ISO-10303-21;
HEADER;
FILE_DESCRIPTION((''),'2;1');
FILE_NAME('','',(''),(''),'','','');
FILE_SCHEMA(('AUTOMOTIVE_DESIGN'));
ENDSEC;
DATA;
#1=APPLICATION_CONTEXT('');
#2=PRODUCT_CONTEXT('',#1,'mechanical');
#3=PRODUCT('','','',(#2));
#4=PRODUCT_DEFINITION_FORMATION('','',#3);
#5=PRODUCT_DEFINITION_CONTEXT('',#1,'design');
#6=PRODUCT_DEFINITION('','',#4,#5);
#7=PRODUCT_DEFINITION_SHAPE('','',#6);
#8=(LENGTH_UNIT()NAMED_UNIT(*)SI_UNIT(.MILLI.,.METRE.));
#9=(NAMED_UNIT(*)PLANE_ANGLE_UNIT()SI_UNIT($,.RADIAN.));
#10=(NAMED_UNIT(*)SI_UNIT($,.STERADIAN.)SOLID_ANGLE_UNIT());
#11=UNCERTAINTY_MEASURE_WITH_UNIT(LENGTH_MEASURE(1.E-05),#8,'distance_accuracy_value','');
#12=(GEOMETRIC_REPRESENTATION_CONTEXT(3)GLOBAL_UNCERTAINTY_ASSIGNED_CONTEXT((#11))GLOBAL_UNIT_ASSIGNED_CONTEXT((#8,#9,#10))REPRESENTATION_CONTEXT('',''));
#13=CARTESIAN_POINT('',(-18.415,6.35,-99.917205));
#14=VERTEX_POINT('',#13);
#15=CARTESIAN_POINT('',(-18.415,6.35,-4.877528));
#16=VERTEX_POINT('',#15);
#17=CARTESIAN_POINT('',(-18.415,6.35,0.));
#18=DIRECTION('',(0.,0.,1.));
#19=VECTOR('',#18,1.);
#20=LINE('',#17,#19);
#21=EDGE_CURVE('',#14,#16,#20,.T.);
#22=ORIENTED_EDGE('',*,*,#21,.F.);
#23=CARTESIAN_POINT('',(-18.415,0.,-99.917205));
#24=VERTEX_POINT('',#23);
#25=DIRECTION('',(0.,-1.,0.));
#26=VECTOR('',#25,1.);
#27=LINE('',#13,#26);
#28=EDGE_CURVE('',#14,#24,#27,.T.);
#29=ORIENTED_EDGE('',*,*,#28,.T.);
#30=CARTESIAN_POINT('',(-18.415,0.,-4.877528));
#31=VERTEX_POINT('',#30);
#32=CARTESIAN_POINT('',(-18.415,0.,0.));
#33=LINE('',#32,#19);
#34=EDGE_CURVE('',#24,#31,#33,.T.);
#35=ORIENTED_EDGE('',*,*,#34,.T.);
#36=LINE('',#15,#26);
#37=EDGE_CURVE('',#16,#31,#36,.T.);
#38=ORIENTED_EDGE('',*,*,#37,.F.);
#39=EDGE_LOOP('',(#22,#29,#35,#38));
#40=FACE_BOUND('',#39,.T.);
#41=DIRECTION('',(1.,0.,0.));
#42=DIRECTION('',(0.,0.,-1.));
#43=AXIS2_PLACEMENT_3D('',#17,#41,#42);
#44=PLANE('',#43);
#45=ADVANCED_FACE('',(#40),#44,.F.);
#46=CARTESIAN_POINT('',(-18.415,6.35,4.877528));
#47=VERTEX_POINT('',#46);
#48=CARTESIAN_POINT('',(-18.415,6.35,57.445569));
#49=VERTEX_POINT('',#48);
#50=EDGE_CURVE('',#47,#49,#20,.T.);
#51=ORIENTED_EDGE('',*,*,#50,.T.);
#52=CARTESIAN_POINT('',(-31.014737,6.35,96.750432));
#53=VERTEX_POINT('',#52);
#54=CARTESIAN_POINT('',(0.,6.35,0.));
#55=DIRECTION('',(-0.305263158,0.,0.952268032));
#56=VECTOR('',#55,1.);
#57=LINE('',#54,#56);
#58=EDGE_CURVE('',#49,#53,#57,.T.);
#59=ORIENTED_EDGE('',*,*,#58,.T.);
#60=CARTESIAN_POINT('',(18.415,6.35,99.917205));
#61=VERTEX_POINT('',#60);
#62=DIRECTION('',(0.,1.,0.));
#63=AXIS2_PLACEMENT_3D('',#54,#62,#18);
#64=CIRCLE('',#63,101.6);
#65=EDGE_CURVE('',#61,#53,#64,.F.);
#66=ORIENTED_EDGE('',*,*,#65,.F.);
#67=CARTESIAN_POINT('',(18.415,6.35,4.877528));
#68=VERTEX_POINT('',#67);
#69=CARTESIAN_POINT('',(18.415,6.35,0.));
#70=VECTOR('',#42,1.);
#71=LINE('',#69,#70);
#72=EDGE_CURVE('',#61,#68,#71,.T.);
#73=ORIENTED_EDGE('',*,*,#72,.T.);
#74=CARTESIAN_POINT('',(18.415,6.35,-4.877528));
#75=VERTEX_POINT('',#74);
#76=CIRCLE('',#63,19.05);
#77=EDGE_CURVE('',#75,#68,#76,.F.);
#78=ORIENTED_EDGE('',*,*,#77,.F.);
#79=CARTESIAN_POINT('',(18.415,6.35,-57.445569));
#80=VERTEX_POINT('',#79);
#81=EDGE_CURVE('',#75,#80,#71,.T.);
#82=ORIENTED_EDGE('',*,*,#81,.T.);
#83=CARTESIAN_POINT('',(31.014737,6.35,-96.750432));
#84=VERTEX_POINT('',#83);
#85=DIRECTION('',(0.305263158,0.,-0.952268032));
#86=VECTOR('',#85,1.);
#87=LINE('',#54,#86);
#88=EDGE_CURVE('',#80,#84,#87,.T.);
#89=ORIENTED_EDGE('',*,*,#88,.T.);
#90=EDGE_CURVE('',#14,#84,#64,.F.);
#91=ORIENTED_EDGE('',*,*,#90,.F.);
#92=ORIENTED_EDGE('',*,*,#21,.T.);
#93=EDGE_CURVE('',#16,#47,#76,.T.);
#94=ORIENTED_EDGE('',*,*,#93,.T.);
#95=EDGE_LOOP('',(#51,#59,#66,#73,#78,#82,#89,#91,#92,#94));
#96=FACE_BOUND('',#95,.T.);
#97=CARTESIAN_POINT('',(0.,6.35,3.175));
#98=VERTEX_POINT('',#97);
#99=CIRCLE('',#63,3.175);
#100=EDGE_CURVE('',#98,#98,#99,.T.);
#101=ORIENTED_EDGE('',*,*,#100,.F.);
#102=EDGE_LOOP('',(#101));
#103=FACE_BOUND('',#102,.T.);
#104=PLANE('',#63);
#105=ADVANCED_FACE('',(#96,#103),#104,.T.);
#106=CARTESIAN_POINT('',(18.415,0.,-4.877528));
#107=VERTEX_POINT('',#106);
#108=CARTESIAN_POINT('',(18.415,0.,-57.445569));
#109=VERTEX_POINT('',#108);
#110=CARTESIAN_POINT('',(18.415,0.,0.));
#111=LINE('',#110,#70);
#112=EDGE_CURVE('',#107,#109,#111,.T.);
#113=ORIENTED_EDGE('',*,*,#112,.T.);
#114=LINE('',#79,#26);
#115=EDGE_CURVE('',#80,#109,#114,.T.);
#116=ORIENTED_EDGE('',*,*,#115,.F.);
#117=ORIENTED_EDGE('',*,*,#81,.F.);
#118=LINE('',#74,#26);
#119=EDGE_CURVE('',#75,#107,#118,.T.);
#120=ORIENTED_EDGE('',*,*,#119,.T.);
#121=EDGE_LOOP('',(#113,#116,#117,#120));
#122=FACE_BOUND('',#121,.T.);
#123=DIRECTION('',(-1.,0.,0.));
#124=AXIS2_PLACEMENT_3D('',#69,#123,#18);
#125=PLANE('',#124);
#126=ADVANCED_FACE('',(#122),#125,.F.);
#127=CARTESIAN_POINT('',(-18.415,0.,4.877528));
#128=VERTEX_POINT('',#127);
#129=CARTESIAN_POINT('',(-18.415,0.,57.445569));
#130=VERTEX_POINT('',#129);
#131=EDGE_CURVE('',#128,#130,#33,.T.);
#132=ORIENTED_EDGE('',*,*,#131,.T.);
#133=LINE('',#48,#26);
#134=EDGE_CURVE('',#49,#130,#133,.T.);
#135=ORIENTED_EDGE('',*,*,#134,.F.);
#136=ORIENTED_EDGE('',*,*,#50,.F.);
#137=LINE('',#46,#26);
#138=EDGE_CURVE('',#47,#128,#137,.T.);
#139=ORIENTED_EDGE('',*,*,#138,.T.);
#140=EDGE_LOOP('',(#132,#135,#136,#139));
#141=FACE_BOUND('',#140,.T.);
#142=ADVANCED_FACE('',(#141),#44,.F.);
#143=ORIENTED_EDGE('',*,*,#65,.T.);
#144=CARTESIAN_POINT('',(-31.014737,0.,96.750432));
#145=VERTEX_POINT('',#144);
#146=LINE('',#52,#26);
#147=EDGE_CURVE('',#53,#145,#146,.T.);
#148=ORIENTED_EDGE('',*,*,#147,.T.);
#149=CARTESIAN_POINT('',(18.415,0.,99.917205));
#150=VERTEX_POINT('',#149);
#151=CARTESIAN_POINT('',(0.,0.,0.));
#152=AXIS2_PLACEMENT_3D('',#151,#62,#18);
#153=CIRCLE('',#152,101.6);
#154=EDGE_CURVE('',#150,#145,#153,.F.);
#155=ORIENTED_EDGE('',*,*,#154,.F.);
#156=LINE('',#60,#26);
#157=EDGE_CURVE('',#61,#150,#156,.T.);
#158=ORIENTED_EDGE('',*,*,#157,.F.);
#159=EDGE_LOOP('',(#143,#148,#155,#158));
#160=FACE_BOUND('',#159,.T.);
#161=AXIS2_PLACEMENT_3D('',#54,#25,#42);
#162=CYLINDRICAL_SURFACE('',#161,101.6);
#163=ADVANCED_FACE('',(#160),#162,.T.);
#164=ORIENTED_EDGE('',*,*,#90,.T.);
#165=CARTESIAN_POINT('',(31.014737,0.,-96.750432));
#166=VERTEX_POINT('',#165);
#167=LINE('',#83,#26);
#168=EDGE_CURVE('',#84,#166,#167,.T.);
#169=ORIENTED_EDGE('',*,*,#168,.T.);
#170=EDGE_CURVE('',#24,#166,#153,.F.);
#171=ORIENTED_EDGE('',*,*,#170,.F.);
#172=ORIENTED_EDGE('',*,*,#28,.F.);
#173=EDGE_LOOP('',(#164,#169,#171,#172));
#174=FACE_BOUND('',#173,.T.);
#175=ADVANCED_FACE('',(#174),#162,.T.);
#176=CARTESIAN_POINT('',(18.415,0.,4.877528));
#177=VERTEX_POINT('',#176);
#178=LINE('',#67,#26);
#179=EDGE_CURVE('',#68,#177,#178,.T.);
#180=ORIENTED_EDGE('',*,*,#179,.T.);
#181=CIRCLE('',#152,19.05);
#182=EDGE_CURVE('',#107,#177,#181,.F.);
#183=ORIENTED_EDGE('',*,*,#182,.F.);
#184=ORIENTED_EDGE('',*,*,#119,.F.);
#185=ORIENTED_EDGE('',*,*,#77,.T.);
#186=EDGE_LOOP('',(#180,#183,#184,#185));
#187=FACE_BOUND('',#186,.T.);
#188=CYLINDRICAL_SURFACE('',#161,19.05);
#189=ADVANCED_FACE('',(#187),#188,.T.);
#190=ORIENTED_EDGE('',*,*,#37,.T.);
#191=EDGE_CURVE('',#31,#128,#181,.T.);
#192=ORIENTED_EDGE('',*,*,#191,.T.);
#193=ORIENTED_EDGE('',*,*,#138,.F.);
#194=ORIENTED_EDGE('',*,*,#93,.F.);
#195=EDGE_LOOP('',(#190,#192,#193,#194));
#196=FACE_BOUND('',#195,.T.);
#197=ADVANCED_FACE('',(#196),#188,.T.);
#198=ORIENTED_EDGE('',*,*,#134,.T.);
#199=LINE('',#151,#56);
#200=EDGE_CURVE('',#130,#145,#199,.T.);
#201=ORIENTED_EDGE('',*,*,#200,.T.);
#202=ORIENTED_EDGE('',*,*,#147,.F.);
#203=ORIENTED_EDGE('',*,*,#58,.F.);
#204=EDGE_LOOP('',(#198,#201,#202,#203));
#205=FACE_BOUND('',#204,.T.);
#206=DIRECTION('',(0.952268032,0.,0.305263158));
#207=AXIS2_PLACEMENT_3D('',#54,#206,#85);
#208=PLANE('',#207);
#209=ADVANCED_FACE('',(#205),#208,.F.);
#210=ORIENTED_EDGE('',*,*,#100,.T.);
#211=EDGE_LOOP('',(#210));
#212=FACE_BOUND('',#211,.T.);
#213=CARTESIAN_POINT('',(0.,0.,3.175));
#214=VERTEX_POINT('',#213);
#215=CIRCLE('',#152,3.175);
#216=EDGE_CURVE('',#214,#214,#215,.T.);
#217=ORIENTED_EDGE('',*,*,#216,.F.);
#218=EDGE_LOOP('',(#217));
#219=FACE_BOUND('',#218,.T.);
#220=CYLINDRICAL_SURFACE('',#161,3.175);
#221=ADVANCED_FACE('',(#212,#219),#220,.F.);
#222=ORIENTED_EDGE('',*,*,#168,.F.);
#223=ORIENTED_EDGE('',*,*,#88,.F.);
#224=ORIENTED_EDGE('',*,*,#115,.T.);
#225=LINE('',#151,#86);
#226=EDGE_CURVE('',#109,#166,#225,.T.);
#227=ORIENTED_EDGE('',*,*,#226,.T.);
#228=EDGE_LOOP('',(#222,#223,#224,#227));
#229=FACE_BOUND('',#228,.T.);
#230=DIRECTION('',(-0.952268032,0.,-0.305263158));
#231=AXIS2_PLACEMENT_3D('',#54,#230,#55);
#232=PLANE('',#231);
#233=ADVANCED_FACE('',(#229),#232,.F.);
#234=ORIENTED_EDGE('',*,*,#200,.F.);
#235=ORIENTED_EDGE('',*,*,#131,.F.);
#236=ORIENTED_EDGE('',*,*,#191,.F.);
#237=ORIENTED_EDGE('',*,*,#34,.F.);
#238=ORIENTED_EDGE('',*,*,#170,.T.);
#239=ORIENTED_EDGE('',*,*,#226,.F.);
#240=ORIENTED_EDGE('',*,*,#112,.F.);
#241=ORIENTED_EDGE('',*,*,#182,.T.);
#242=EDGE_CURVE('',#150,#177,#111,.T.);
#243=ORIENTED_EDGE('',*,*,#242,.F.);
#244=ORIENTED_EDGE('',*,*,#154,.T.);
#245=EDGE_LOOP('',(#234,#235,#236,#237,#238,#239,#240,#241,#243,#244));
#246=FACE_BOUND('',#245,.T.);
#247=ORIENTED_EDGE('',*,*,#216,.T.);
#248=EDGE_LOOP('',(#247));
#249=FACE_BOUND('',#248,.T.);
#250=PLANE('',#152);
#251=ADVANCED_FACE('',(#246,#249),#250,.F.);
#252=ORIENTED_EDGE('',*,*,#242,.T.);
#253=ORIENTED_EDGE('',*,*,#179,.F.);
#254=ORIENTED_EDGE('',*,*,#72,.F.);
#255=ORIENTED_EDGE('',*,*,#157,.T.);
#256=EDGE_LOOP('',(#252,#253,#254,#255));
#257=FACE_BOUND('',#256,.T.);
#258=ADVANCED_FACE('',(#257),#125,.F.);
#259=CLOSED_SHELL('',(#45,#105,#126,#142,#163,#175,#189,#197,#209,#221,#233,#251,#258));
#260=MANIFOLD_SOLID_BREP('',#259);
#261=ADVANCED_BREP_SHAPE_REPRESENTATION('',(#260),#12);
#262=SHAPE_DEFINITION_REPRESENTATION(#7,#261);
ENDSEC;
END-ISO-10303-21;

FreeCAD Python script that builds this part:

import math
import FreeCAD as App
import Part
import Sketcher
Q = App.Units.Quantity

doc = App.newDocument("Part")
params = doc.addObject("Spreadsheet::Sheet", "Params")
for row, (alias, value) in enumerate([
    ("sketch1_radius", "4 in"),
    ("sketch1_diameter", "0.25 in"),
    ("sketch1_radius2", "0.75 in"),
    ("sketch1_length", "1.625 in"),
    ("pad1_length", "0.25 in"),
], start=1):
    params.set(f"A{row}", alias)
    params.set(f"B{row}", "=" + value)
    params.setAlias(f"B{row}", alias)

body = doc.addObject("PartDesign::Body", "Body")

# Sketch on XZ plane
sketch1 = body.newObject("Sketcher::SketchObject", "Sketch")
sketch1.AttachmentSupport = (doc.getObject("XZ_Plane"), [""])
sketch1.MapMode = "FlatFace"
sketch1.addGeometry([
    Part.ArcOfCircle(Part.Circle(App.Vector(0, 0, 0), App.Vector(0, 0, 1), 19.1), math.radians(-15), math.radians(15)),  # 0
    Part.LineSegment(App.Vector(18.4, -4.9, 0), App.Vector(18.4, -57.4, 0)),  # 1
    Part.LineSegment(App.Vector(18.4, -57.4, 0), App.Vector(31, -96.8, 0)),  # 2
    Part.ArcOfCircle(Part.Circle(App.Vector(0, 0, 0), App.Vector(0, 0, 1), 101.6), math.radians(-100), math.radians(-72)),  # 3
    Part.LineSegment(App.Vector(-18.4, -99.9, 0), App.Vector(-18.4, -4.9, 0)),  # 4
    Part.ArcOfCircle(Part.Circle(App.Vector(0, 0, 0), App.Vector(0, 0, 1), 19.1), math.radians(165), math.radians(195)),  # 5
    Part.LineSegment(App.Vector(-18.4, 4.9, 0), App.Vector(-18.4, 57.4, 0)),  # 6
    Part.LineSegment(App.Vector(-18.4, 57.4, 0), App.Vector(-31, 96.8, 0)),  # 7
    Part.ArcOfCircle(Part.Circle(App.Vector(0, 0, 0), App.Vector(0, 0, 1), 101.6), math.radians(80), math.radians(108)),  # 8
    Part.LineSegment(App.Vector(18.4, 99.9, 0), App.Vector(18.4, 4.9, 0)),  # 9
    Part.Circle(App.Vector(0, 0, 0), App.Vector(0, 0, 1), 3.2),  # 10
], False)
sketch1.addConstraint([
    Sketcher.Constraint("Coincident", 0, 1, 1, 1),
    Sketcher.Constraint("Coincident", 1, 2, 2, 1),
    Sketcher.Constraint("Coincident", 2, 2, 3, 2),
    Sketcher.Constraint("Coincident", 3, 1, 4, 1),
    Sketcher.Constraint("Coincident", 4, 2, 5, 2),
    Sketcher.Constraint("Coincident", 5, 1, 6, 1),
    Sketcher.Constraint("Coincident", 6, 2, 7, 1),
    Sketcher.Constraint("Coincident", 7, 2, 8, 2),
    Sketcher.Constraint("Coincident", 8, 1, 9, 1),
    Sketcher.Constraint("Coincident", 9, 2, 0, 2),
    Sketcher.Constraint("Vertical", 1),
    Sketcher.Constraint("Vertical", 4),
    Sketcher.Constraint("Vertical", 6),
    Sketcher.Constraint("Vertical", 9),
    Sketcher.Constraint("Coincident", 0, 3, -1, 1),
    Sketcher.Constraint("Coincident", 3, 3, -1, 1),
    Sketcher.Constraint("Coincident", 5, 3, -1, 1),
    Sketcher.Constraint("Coincident", 8, 3, -1, 1),
    Sketcher.Constraint("Coincident", 10, 3, -1, 1),
    Sketcher.Constraint("Equal", 0, 5),
    Sketcher.Constraint("Equal", 3, 8),
    Sketcher.Constraint("Symmetric", 1, 2, 6, 2, -1, 1),
    Sketcher.Constraint("Parallel", 2, 7),
    Sketcher.Constraint("Horizontal", 0, 1, 4, 2),
    Sketcher.Constraint("Horizontal", 5, 1, 9, 2),
    Sketcher.Constraint("Radius", 3, Q("4 in")),
    Sketcher.Constraint("Diameter", 10, Q("0.25 in")),
    Sketcher.Constraint("Radius", 0, Q("0.75 in")),
    Sketcher.Constraint("DistanceX", 3, 1, 1, 2, Q("1.45 in")),
    Sketcher.Constraint("Distance", 2, Q("1.625 in")),
    Sketcher.Constraint("DistanceX", -1, 1, 2, 2, Q("31.014737 mm")),
])
sketch1.setExpression("Constraints[25]", "Params.sketch1_radius")
sketch1.setExpression("Constraints[26]", "Params.sketch1_diameter")
sketch1.setExpression("Constraints[27]", "Params.sketch1_radius2")
sketch1.setExpression("Constraints[29]", "Params.sketch1_length")
pad1 = body.newObject("PartDesign::Pad", "Pad")
pad1.Profile = sketch1
pad1.setExpression("Length", "Params.pad1_length")
pad1.Reversed = True

doc.recompute()
